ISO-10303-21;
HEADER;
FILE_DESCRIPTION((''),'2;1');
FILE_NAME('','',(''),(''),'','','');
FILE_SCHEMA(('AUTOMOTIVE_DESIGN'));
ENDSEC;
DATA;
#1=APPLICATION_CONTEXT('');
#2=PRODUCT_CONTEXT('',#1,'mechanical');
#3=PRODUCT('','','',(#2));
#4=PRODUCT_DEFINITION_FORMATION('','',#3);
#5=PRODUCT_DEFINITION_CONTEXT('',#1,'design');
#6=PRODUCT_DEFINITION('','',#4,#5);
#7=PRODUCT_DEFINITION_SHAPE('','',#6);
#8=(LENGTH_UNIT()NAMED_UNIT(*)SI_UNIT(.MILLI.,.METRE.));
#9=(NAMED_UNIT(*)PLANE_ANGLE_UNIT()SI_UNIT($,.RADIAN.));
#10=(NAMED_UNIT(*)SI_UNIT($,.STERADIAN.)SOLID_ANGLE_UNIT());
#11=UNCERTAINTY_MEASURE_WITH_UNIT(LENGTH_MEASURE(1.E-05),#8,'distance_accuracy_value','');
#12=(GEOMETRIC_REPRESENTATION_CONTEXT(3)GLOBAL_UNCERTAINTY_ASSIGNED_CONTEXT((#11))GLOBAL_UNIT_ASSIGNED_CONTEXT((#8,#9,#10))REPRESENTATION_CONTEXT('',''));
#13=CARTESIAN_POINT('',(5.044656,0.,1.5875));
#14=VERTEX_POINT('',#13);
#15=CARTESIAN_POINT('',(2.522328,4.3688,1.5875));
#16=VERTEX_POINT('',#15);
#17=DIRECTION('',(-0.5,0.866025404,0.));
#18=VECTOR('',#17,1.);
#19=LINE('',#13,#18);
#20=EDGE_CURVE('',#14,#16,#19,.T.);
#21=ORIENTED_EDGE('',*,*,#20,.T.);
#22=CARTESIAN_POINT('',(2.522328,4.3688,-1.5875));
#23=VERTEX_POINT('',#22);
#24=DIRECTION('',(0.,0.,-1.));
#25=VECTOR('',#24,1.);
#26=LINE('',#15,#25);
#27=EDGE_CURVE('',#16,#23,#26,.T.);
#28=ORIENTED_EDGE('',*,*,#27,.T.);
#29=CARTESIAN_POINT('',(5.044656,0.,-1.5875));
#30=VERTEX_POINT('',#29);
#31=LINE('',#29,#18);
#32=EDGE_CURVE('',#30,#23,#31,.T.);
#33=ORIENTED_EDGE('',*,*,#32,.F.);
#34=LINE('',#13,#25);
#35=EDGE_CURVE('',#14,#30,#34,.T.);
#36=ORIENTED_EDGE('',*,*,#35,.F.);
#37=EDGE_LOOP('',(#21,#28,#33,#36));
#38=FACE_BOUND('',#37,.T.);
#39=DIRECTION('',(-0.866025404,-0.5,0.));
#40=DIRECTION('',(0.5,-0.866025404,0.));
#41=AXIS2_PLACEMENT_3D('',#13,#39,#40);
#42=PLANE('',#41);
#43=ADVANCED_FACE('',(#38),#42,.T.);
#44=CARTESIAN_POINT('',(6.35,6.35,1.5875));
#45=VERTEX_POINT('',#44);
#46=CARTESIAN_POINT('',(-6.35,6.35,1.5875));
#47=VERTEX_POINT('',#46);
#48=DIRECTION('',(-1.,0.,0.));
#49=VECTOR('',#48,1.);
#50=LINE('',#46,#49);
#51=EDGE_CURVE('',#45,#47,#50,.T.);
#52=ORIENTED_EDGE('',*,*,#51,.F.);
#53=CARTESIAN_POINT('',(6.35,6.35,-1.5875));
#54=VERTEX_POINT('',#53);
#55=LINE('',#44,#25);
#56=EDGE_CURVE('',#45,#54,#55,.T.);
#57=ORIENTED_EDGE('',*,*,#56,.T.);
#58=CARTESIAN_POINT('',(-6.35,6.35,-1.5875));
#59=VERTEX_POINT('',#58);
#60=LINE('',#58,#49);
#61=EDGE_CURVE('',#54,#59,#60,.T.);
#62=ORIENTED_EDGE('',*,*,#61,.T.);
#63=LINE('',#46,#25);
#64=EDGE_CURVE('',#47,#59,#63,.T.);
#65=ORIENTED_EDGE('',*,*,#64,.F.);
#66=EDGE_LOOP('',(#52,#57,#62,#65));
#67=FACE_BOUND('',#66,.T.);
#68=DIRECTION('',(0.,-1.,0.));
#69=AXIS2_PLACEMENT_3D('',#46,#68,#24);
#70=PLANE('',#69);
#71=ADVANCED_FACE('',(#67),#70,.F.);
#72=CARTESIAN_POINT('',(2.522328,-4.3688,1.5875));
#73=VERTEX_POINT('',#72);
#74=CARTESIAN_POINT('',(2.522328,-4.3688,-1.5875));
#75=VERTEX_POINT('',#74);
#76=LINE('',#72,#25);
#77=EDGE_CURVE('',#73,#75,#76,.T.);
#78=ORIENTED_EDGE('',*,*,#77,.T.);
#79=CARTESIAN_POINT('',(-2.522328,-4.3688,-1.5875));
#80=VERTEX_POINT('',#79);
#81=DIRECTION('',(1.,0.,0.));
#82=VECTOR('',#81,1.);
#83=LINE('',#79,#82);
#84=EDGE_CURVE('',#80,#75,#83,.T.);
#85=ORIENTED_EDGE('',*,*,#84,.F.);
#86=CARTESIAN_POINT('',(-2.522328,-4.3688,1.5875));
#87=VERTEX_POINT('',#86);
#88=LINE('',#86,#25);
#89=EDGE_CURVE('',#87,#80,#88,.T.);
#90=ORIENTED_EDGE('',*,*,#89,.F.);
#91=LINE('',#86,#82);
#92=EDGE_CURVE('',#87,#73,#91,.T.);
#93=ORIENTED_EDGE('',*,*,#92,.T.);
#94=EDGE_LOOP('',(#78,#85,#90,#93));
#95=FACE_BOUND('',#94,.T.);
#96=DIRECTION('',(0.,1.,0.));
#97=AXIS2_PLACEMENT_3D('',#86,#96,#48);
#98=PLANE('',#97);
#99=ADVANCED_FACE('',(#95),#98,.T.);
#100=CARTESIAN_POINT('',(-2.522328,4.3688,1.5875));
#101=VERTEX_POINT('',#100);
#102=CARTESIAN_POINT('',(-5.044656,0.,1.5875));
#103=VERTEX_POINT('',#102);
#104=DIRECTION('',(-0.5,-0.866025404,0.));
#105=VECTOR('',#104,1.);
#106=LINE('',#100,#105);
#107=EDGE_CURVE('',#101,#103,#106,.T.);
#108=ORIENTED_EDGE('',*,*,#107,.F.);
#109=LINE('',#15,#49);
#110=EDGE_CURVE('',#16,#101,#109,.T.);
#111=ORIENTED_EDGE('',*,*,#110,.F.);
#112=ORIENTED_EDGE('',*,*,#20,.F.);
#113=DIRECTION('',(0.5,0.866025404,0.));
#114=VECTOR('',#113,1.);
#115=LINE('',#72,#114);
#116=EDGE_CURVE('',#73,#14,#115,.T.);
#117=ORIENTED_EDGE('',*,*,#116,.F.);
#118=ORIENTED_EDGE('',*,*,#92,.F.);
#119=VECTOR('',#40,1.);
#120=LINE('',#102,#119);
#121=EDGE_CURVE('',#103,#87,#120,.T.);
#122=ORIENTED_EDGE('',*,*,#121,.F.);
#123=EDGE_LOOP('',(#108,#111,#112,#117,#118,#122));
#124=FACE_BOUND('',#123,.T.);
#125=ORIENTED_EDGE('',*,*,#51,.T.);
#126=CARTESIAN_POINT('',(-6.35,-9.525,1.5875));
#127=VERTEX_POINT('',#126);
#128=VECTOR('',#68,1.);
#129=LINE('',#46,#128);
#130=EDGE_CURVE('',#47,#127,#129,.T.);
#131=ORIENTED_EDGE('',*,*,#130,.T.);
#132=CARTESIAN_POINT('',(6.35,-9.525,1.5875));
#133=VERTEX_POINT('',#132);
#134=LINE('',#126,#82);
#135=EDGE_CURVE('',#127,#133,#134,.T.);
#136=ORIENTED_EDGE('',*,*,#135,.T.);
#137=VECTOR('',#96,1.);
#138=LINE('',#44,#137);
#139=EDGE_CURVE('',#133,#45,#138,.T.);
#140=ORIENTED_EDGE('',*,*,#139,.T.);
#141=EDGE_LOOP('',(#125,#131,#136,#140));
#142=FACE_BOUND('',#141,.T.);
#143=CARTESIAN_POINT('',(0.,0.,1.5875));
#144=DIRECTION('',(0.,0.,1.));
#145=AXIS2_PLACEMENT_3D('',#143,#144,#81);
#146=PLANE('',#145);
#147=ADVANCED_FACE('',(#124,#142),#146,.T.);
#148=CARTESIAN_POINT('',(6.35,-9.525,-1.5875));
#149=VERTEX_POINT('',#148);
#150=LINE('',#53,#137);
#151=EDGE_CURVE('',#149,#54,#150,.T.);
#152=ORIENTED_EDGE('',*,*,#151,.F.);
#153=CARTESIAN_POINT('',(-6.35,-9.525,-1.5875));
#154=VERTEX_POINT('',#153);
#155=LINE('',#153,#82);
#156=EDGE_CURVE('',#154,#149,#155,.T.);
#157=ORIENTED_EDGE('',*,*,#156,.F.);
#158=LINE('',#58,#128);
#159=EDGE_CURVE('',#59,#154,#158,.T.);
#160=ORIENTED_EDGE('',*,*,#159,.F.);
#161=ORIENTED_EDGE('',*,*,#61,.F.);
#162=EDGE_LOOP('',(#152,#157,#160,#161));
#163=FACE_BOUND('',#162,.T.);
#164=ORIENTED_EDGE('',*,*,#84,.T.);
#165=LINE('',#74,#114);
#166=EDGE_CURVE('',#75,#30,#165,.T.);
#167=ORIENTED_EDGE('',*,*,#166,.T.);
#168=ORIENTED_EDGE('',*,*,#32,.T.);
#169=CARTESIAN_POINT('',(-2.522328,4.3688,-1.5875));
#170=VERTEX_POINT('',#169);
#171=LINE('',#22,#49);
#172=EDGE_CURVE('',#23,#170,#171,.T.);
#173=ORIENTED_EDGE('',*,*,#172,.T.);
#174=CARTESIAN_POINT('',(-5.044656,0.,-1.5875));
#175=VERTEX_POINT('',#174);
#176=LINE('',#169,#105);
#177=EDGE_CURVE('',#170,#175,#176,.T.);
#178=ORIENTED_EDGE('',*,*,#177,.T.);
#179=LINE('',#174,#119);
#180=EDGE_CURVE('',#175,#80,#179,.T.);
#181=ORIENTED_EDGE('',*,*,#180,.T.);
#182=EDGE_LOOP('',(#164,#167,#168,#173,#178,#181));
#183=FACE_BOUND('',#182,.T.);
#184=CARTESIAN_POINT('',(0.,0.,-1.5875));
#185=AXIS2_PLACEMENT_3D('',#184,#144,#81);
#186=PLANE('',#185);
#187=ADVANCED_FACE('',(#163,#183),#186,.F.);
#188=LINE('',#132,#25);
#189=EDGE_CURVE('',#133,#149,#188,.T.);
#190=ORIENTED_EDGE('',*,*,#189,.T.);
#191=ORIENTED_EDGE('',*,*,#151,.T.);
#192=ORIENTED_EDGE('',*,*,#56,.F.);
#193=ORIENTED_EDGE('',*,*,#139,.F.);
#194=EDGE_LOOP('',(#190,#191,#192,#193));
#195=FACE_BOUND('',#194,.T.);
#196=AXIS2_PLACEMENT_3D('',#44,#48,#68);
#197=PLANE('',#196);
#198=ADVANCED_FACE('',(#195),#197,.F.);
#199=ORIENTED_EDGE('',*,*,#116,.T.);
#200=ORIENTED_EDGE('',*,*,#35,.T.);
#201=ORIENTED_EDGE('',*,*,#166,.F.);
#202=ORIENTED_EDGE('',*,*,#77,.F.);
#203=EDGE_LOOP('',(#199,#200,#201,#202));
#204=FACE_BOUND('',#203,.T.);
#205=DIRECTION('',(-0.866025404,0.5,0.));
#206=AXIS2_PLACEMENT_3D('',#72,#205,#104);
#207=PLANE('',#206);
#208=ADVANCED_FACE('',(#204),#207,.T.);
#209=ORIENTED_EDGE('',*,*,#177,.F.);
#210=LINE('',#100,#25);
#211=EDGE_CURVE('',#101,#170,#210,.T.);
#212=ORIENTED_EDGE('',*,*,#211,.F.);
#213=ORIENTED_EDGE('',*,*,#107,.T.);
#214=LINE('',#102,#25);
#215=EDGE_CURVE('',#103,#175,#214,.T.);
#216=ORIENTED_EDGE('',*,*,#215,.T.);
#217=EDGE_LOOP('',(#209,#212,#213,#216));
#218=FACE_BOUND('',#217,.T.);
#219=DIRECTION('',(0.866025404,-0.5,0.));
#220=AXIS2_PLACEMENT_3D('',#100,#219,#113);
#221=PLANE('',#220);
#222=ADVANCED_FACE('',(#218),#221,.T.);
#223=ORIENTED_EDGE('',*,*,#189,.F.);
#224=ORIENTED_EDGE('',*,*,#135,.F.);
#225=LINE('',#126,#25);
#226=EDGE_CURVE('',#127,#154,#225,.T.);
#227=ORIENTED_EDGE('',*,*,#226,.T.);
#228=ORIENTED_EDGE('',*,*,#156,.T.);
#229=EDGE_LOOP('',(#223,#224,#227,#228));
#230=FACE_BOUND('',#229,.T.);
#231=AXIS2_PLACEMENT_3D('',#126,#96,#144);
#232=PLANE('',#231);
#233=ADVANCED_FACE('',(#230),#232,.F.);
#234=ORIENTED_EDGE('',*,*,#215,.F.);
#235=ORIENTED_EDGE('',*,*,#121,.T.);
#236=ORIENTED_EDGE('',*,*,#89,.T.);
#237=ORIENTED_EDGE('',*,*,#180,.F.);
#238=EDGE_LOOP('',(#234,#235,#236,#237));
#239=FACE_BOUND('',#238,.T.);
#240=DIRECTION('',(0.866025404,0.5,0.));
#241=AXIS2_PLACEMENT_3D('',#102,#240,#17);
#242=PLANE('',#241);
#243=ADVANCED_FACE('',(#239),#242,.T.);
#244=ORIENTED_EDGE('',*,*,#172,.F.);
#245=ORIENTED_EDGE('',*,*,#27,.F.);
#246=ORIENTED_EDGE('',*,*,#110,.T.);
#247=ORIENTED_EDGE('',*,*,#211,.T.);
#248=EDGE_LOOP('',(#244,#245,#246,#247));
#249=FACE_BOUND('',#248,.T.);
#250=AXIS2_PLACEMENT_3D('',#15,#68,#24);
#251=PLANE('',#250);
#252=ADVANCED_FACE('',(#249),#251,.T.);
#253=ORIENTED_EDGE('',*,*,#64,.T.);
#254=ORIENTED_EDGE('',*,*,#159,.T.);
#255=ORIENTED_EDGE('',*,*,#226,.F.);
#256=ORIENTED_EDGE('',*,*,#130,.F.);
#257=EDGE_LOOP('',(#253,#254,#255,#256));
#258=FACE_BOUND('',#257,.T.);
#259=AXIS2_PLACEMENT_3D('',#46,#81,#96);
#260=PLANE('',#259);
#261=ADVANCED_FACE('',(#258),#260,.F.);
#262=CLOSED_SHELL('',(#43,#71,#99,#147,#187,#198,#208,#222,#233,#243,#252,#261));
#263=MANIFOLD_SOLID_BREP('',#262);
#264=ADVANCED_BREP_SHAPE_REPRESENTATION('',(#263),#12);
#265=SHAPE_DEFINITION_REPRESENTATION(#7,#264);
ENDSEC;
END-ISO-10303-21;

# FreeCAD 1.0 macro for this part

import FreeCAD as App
import Part
import Sketcher

V = App.Vector
Q = App.Units.Quantity


def add_polygon(sketch, points):
    """Adds a closed chain of lines whose ends are joined by coincident constraints."""
    first, n = sketch.GeometryCount, len(points)
    for a, b in zip(points, points[1:] + points[:1]):
        sketch.addGeometry(Part.LineSegment(App.Vector(*a, 0), App.Vector(*b, 0)), False)
    for i in range(n):
        sketch.addConstraint(Sketcher.Constraint("Coincident", first + i, 2, first + (i + 1) % n, 1))

doc = App.newDocument("Part")
params = doc.addObject("Spreadsheet::Sheet", "Params")
for row, (alias, value) in enumerate([
    ("sketch1_width", "0.5 in"),
    ("sketch1_height", "0.625 in"),
    ("pad1_length", "0.125 in"),
], start=1):
    params.set(f"A{row}", alias)
    params.set(f"B{row}", "=" + value)
    params.setAlias(f"B{row}", alias)

body = doc.addObject("PartDesign::Body", "Body")

sketch1 = body.newObject("Sketcher::SketchObject", "Sketch")
sketch1.AttachmentSupport = (doc.getObject("XY_Plane"), [""])
sketch1.MapMode = "FlatFace"
add_polygon(sketch1, [(-6.35, 6.35), (-6.35, -9.525), (6.35, -9.525), (6.35, 6.35)])
add_polygon(sketch1, [(-2.522328, 4.3688), (2.522328, 4.3688), (5.044656, 0), (2.522328, -4.3688), (-2.522328, -4.3688), (-5.044656, 0)])
sketch1.addConstraint(Sketcher.Constraint("Vertical", 0))
sketch1.addConstraint(Sketcher.Constraint("Horizontal", 1))
sketch1.addConstraint(Sketcher.Constraint("Vertical", 2))
sketch1.addConstraint(Sketcher.Constraint("Horizontal", 3))
sketch1.addConstraint(Sketcher.Constraint("Horizontal", 4))
sketch1.addConstraint(Sketcher.Constraint("Horizontal", 7))
sketch1.addConstraint(Sketcher.Constraint("Symmetric", 4, 2, 7, 2, -1, 1))
sketch1.addConstraint(Sketcher.Constraint("Symmetric", 5, 2, 8, 2, -1, 1))
sketch1.addConstraint(Sketcher.Constraint("PointOnObject", 5, 2, -1))
sketch1.addConstraint(Sketcher.Constraint("Parallel", 6, 9))
sketch1.addConstraint(Sketcher.Constraint("Vertical", 4, 2, 6, 2))
sketch1.addConstraint(Sketcher.Constraint("DistanceX", 1, 1, 1, 2, Q("0.5 in")))
sketch1.addConstraint(Sketcher.Constraint("Angle", 5, Q("-60 deg")))
sketch1.addConstraint(Sketcher.Constraint("DistanceY", 0, 2, 0, 1, Q("0.625 in")))
sketch1.addConstraint(Sketcher.Constraint("DistanceX", 0, 2, -1, 1, Q("0.25 in")))
sketch1.addConstraint(Sketcher.Constraint("DistanceY", -1, 1, 2, 2, Q("0.25 in")))
sketch1.addConstraint(Sketcher.Constraint("DistanceY", -1, 1, 4, 2, Q("0.172 in")))
sketch1.addConstraint(Sketcher.Constraint("DistanceX", 4, 1, 4, 2, Q("5.044656 mm")))
sketch1.setExpression("Constraints[21]", "Params.sketch1_width")
sketch1.setExpression("Constraints[23]", "Params.sketch1_height")
pad1 = body.newObject("PartDesign::Pad", "Pad")
pad1.Profile = sketch1
pad1.setExpression("Length", "Params.pad1_length")
pad1.Midplane = True

doc.recompute()
